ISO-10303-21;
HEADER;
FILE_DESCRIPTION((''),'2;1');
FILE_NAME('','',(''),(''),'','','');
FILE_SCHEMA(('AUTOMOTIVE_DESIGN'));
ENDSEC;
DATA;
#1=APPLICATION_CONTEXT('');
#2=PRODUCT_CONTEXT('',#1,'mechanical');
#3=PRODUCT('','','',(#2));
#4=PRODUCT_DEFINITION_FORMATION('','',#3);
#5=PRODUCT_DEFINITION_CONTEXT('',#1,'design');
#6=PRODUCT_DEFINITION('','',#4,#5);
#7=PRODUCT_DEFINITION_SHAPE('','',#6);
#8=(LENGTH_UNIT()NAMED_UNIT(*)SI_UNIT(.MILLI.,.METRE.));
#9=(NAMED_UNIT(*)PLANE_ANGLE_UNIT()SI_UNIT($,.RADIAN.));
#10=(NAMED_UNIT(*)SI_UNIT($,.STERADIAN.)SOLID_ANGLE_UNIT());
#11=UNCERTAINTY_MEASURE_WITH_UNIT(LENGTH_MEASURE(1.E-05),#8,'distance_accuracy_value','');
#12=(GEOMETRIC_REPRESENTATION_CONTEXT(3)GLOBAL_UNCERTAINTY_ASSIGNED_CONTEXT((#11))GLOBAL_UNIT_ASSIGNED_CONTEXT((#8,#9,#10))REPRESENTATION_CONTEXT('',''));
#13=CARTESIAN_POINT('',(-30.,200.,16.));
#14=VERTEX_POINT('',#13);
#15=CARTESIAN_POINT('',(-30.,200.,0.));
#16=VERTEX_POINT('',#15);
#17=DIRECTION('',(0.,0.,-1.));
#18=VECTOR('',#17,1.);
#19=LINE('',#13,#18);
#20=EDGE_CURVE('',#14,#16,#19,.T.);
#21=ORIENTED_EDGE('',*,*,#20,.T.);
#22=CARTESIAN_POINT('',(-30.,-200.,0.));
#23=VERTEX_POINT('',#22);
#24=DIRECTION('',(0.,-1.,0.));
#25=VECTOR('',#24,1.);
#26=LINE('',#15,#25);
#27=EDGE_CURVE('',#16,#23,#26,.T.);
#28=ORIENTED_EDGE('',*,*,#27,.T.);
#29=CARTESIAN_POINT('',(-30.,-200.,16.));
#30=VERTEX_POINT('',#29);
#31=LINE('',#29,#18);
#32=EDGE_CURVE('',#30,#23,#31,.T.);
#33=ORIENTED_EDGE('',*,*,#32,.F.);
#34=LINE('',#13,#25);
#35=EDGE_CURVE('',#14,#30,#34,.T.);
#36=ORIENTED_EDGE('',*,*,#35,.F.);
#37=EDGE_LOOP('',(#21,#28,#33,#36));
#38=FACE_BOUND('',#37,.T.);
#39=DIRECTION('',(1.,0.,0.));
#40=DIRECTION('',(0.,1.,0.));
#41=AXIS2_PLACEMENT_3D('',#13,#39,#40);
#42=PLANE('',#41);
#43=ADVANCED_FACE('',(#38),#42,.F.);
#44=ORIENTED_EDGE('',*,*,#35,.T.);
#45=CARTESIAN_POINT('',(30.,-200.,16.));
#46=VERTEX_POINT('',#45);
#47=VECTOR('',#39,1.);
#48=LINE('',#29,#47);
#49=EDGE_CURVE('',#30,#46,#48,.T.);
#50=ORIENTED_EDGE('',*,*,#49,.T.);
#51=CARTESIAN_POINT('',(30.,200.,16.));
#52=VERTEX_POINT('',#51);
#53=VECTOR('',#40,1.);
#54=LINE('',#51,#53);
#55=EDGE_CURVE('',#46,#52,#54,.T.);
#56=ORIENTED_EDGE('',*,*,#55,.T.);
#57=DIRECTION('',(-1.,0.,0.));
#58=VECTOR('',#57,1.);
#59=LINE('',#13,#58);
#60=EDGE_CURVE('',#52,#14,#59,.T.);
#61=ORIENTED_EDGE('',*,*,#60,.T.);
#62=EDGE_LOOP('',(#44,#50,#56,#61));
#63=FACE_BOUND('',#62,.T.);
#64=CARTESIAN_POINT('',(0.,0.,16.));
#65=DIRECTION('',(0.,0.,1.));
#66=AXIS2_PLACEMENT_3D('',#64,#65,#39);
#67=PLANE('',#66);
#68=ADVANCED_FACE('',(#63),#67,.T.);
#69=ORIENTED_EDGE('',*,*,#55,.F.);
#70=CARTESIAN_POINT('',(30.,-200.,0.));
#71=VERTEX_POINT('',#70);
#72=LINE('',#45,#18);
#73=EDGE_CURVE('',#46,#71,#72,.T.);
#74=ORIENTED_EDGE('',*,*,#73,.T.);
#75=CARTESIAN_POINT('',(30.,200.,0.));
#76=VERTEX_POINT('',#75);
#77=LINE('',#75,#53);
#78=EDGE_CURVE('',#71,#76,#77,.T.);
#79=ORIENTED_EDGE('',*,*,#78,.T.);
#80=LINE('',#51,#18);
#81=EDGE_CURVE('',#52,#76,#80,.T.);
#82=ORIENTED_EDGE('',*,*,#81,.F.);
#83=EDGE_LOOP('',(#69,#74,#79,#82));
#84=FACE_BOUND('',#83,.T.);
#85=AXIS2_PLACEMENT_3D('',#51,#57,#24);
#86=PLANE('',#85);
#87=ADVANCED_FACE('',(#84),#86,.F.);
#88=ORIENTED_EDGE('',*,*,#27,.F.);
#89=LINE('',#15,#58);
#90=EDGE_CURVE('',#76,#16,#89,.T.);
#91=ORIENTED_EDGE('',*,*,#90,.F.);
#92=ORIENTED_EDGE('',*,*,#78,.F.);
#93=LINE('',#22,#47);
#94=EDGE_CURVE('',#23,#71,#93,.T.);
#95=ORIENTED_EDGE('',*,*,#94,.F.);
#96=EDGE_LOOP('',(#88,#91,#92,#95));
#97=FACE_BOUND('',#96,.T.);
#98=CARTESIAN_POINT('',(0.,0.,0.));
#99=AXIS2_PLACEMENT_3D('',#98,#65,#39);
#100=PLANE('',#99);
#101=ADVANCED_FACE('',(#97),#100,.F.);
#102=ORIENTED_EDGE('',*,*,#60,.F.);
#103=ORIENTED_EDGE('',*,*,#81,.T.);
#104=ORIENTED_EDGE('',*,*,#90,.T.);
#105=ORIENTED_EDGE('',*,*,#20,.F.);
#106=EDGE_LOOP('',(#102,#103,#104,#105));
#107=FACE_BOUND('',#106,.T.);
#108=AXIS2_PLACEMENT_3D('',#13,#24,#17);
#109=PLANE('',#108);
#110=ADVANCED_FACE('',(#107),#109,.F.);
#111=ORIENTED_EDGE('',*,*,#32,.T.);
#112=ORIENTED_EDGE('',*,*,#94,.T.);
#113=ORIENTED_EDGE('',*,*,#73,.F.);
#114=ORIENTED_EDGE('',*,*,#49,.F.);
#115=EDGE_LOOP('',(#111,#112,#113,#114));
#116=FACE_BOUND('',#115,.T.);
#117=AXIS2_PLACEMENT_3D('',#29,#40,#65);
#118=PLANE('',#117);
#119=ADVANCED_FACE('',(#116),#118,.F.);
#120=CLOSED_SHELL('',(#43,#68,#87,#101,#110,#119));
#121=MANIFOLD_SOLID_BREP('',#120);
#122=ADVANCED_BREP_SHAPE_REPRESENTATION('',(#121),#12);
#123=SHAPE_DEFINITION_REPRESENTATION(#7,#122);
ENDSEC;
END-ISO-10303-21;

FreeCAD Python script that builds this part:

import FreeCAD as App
import Part
import Sketcher


def add_polygon(sketch, points):
    """Adds a closed chain of lines whose ends are joined by coincident constraints."""
    first, n = sketch.GeometryCount, len(points)
    for a, b in zip(points, points[1:] + points[:1]):
        sketch.addGeometry(Part.LineSegment(App.Vector(*a, 0), App.Vector(*b, 0)), False)
    for i in range(n):
        sketch.addConstraint(Sketcher.Constraint("Coincident", first + i, 2, first + (i + 1) % n, 1))

doc = App.newDocument("Part")
body = doc.addObject("PartDesign::Body", "Body")

sketch1 = body.newObject("Sketcher::SketchObject", "Sketch")
sketch1.AttachmentSupport = (doc.getObject("XY_Plane"), [""])
sketch1.MapMode = "FlatFace"
add_polygon(sketch1, [(-30, 200), (-30, -200), (30, -200), (30, 200)])
sketch1.addConstraint([
    Sketcher.Constraint("Vertical", 0),
    Sketcher.Constraint("Horizontal", 1),
    Sketcher.Constraint("Vertical", 2),
    Sketcher.Constraint("Horizontal", 3),
    Sketcher.Constraint("Symmetric", 0, 2, 2, 2, -1, 1),
    Sketcher.Constraint("DistanceX", 1, 1, 1, 2, 60.0),
    Sketcher.Constraint("DistanceY", 0, 2, 0, 1, 400.0),
])
pad1 = body.newObject("PartDesign::Pad", "Pad")
pad1.Profile = sketch1
pad1.Length = 16

doc.recompute()
